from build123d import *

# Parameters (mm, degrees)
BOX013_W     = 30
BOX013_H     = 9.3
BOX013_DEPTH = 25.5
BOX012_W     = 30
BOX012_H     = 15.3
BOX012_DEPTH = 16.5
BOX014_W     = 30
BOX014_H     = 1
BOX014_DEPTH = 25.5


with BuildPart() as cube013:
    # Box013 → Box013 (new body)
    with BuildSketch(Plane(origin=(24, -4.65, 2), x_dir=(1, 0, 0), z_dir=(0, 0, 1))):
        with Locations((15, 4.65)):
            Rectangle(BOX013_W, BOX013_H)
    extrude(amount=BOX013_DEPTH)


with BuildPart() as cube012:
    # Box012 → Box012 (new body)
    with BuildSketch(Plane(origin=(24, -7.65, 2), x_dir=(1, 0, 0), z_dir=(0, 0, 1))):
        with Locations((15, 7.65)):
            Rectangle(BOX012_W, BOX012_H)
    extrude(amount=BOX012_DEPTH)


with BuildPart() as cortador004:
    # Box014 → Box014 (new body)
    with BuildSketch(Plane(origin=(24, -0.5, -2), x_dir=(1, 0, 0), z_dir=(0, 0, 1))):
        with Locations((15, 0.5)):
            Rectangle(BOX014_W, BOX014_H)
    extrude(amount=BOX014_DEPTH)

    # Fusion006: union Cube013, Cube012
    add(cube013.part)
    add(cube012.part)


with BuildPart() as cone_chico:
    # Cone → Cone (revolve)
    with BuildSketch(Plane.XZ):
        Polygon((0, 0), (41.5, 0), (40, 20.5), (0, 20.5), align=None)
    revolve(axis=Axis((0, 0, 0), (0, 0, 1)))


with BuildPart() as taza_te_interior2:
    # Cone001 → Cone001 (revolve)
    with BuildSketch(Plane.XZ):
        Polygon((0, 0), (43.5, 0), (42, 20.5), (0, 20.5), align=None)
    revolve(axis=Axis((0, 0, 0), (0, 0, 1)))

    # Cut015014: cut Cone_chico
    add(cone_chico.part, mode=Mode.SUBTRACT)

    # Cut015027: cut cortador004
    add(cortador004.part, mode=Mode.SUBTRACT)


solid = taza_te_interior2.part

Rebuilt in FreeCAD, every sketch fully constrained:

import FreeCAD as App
import Part
import Sketcher
Q = App.Units.Quantity

doc = App.newDocument("Part")
params = doc.addObject("Spreadsheet::Sheet", "Params")
for row, (alias, value) in enumerate([
    ("sketch1_width", "30 mm"),
    ("sketch1_height", "9.3 mm"),
    ("pad1_length", "25.5 mm"),
    ("sketch2_width", "30 mm"),
    ("sketch2_height", "15.3 mm"),
    ("pad2_length", "16.5 mm"),
    ("sketch3_width", "30 mm"),
    ("sketch3_height", "1 mm"),
    ("pad3_length", "25.5 mm"),
    ("sketch4_width", "40 mm"),
    ("sketch4_width2", "41.5 mm"),
    ("sketch4_height", "20.5 mm"),
    ("revolution_angle", "360 deg"),
    ("sketch5_width", "42 mm"),
    ("sketch5_width2", "43.5 mm"),
    ("sketch5_height", "20.5 mm"),
    ("revolution2_angle", "360 deg"),
], start=1):
    params.set(f"A{row}", alias)
    params.set(f"B{row}", "=" + value)
    params.setAlias(f"B{row}", alias)

body = doc.addObject("PartDesign::Body", "Body")

# Sketch on XY plane
sketch1 = doc.addObject("Sketcher::SketchObject", "Sketch")
body.addObject(sketch1)
sketch1.AttachmentSupport = (doc.XY_Plane, [""])
sketch1.MapMode = "FlatFace"
sketch1.AttachmentOffset = App.Placement(App.Vector(0, 0, 2), App.Rotation())
sketch1.addGeometry([
    Part.LineSegment(App.Vector(24, 5, 0), App.Vector(24, -5, 0)),
    Part.LineSegment(App.Vector(24, -5, 0), App.Vector(54, -5, 0)),
    Part.LineSegment(App.Vector(54, -5, 0), App.Vector(54, 5, 0)),
    Part.LineSegment(App.Vector(54, 5, 0), App.Vector(24, 5, 0)),
], False)
sketch1.addConstraint([
    Sketcher.Constraint("Coincident", 0, 2, 1, 1),
    Sketcher.Constraint("Coincident", 1, 2, 2, 1),
    Sketcher.Constraint("Coincident", 2, 2, 3, 1),
    Sketcher.Constraint("Coincident", 3, 2, 0, 1),
    Sketcher.Constraint("Vertical", 0),
    Sketcher.Constraint("Horizontal", 1),
    Sketcher.Constraint("Vertical", 2),
    Sketcher.Constraint("Horizontal", 3),
    Sketcher.Constraint("DistanceX", 1, 1, 1, 2, Q("30 mm")),
    Sketcher.Constraint("DistanceY", 0, 2, 0, 1, Q("9.3 mm")),
    Sketcher.Constraint("DistanceX", -1, 1, 0, 2, Q("24 mm")),
    Sketcher.Constraint("DistanceY", 0, 2, -1, 1, Q("4.65 mm")),
])
sketch1.setExpression("Constraints[8]", "Params.sketch1_width")
sketch1.setExpression("Constraints[9]", "Params.sketch1_height")
pad1 = doc.addObject("PartDesign::Pad", "Pad")
body.addObject(pad1)
pad1.Profile = sketch1
pad1.setExpression("Length", "Params.pad1_length")
body2 = doc.addObject("PartDesign::Body", "Body001")

# Sketch on XY plane
sketch2 = doc.addObject("Sketcher::SketchObject", "Sketch001")
body2.addObject(sketch2)
sketch2.AttachmentSupport = (doc.getObject("XY_Plane001"), [""])
sketch2.MapMode = "FlatFace"
sketch2.AttachmentOffset = App.Placement(App.Vector(0, 0, 2), App.Rotation())
sketch2.addGeometry([
    Part.LineSegment(App.Vector(24, 8, 0), App.Vector(24, -8, 0)),
    Part.LineSegment(App.Vector(24, -8, 0), App.Vector(54, -8, 0)),
    Part.LineSegment(App.Vector(54, -8, 0), App.Vector(54, 8, 0)),
    Part.LineSegment(App.Vector(54, 8, 0), App.Vector(24, 8, 0)),
], False)
sketch2.addConstraint([
    Sketcher.Constraint("Coincident", 0, 2, 1, 1),
    Sketcher.Constraint("Coincident", 1, 2, 2, 1),
    Sketcher.Constraint("Coincident", 2, 2, 3, 1),
    Sketcher.Constraint("Coincident", 3, 2, 0, 1),
    Sketcher.Constraint("Vertical", 0),
    Sketcher.Constraint("Horizontal", 1),
    Sketcher.Constraint("Vertical", 2),
    Sketcher.Constraint("Horizontal", 3),
    Sketcher.Constraint("DistanceX", 1, 1, 1, 2, Q("30 mm")),
    Sketcher.Constraint("DistanceY", 0, 2, 0, 1, Q("15.3 mm")),
    Sketcher.Constraint("DistanceX", -1, 1, 0, 2, Q("24 mm")),
    Sketcher.Constraint("DistanceY", 0, 2, -1, 1, Q("7.65 mm")),
])
sketch2.setExpression("Constraints[8]", "Params.sketch2_width")
sketch2.setExpression("Constraints[9]", "Params.sketch2_height")
pad2 = doc.addObject("PartDesign::Pad", "Pad001")
body2.addObject(pad2)
pad2.Profile = sketch2
pad2.setExpression("Length", "Params.pad2_length")
body3 = doc.addObject("PartDesign::Body", "Body002")

# Sketch on XY plane
sketch3 = doc.addObject("Sketcher::SketchObject", "Sketch002")
body3.addObject(sketch3)
sketch3.AttachmentSupport = (doc.getObject("XY_Plane002"), [""])
sketch3.MapMode = "FlatFace"
sketch3.AttachmentOffset = App.Placement(App.Vector(0, 0, -2), App.Rotation())
sketch3.addGeometry([
    Part.LineSegment(App.Vector(24, 0.5, 0), App.Vector(24, -0.5, 0)),
    Part.LineSegment(App.Vector(24, -0.5, 0), App.Vector(54, -0.5, 0)),
    Part.LineSegment(App.Vector(54, -0.5, 0), App.Vector(54, 0.5, 0)),
    Part.LineSegment(App.Vector(54, 0.5, 0), App.Vector(24, 0.5, 0)),
], False)
sketch3.addConstraint([
    Sketcher.Constraint("Coincident", 0, 2, 1, 1),
    Sketcher.Constraint("Coincident", 1, 2, 2, 1),
    Sketcher.Constraint("Coincident", 2, 2, 3, 1),
    Sketcher.Constraint("Coincident", 3, 2, 0, 1),
    Sketcher.Constraint("Vertical", 0),
    Sketcher.Constraint("Horizontal", 1),
    Sketcher.Constraint("Vertical", 2),
    Sketcher.Constraint("Horizontal", 3),
    Sketcher.Constraint("DistanceX", 1, 1, 1, 2, Q("30 mm")),
    Sketcher.Constraint("DistanceY", 0, 2, 0, 1, Q("1 mm")),
    Sketcher.Constraint("DistanceX", -1, 1, 0, 2, Q("24 mm")),
    Sketcher.Constraint("DistanceY", 0, 2, -1, 1, Q("0.5 mm")),
])
sketch3.setExpression("Constraints[8]", "Params.sketch3_width")
sketch3.setExpression("Constraints[9]", "Params.sketch3_height")
pad3 = doc.addObject("PartDesign::Pad", "Pad002")
body3.addObject(pad3)
pad3.Profile = sketch3
pad3.setExpression("Length", "Params.pad3_length")
doc.recompute()

boolean = doc.addObject("PartDesign::Boolean", "Boolean")
body3.addObject(boolean)
boolean.Type = "Fuse"
boolean.addObjects([body])
doc.recompute()

boolean2 = doc.addObject("PartDesign::Boolean", "Boolean001")
body3.addObject(boolean2)
boolean2.Type = "Fuse"
boolean2.addObjects([body2])
body4 = doc.addObject("PartDesign::Body", "Body003")

# Sketch on XZ plane
sketch4 = doc.addObject("Sketcher::SketchObject", "Sketch003")
body4.addObject(sketch4)
sketch4.AttachmentSupport = (doc.getObject("XZ_Plane003"), [""])
sketch4.MapMode = "FlatFace"
sketch4.addGeometry([
    Part.LineSegment(App.Vector(0, 0, 0), App.Vector(42, 0, 0)),
    Part.LineSegment(App.Vector(42, 0, 0), App.Vector(40, 20, 0)),
    Part.LineSegment(App.Vector(40, 20, 0), App.Vector(0, 20, 0)),
    Part.LineSegment(App.Vector(0, 20, 0), App.Vector(0, 0, 0)),
], False)
sketch4.addConstraint([
    Sketcher.Constraint("Coincident", 0, 2, 1, 1),
    Sketcher.Constraint("Coincident", 1, 2, 2, 1),
    Sketcher.Constraint("Coincident", 2, 2, 3, 1),
    Sketcher.Constraint("Coincident", 3, 2, 0, 1),
    Sketcher.Constraint("Horizontal", 0),
    Sketcher.Constraint("Horizontal", 2),
    Sketcher.Constraint("Vertical", 3),
    Sketcher.Constraint("Coincident", 3, 2, -1, 1),
    Sketcher.Constraint("DistanceX", 2, 2, 2, 1, Q("40 mm")),
    Sketcher.Constraint("DistanceX", 0, 1, 0, 2, Q("41.5 mm")),
    Sketcher.Constraint("DistanceY", 3, 2, 3, 1, Q("20.5 mm")),
])
sketch4.setExpression("Constraints[8]", "Params.sketch4_width")
sketch4.setExpression("Constraints[9]", "Params.sketch4_width2")
sketch4.setExpression("Constraints[10]", "Params.sketch4_height")
revolution = doc.addObject("PartDesign::Revolution", "Revolution")
body4.addObject(revolution)
revolution.Profile = sketch4
revolution.ReferenceAxis = (sketch4, ["V_Axis"])
revolution.setExpression("Angle", "Params.revolution_angle")
body5 = doc.addObject("PartDesign::Body", "Body004")

# Sketch on XZ plane
sketch5 = doc.addObject("Sketcher::SketchObject", "Sketch004")
body5.addObject(sketch5)
sketch5.AttachmentSupport = (doc.getObject("XZ_Plane004"), [""])
sketch5.MapMode = "FlatFace"
sketch5.addGeometry([
    Part.LineSegment(App.Vector(0, 0, 0), App.Vector(44, 0, 0)),
    Part.LineSegment(App.Vector(44, 0, 0), App.Vector(42, 20, 0)),
    Part.LineSegment(App.Vector(42, 20, 0), App.Vector(0, 20, 0)),
    Part.LineSegment(App.Vector(0, 20, 0), App.Vector(0, 0, 0)),
], False)
sketch5.addConstraint([
    Sketcher.Constraint("Coincident", 0, 2, 1, 1),
    Sketcher.Constraint("Coincident", 1, 2, 2, 1),
    Sketcher.Constraint("Coincident", 2, 2, 3, 1),
    Sketcher.Constraint("Coincident", 3, 2, 0, 1),
    Sketcher.Constraint("Horizontal", 0),
    Sketcher.Constraint("Horizontal", 2),
    Sketcher.Constraint("Vertical", 3),
    Sketcher.Constraint("Coincident", 3, 2, -1, 1),
    Sketcher.Constraint("DistanceX", 2, 2, 2, 1, Q("42 mm")),
    Sketcher.Constraint("DistanceX", 0, 1, 0, 2, Q("43.5 mm")),
    Sketcher.Constraint("DistanceY", 3, 2, 3, 1, Q("20.5 mm")),
])
sketch5.setExpression("Constraints[8]", "Params.sketch5_width")
sketch5.setExpression("Constraints[9]", "Params.sketch5_width2")
sketch5.setExpression("Constraints[10]", "Params.sketch5_height")
revolution2 = doc.addObject("PartDesign::Revolution", "Revolution001")
body5.addObject(revolution2)
revolution2.Profile = sketch5
revolution2.ReferenceAxis = (sketch5, ["V_Axis"])
revolution2.setExpression("Angle", "Params.revolution2_angle")
doc.recompute()

boolean3 = doc.addObject("PartDesign::Boolean", "Boolean002")
body5.addObject(boolean3)
boolean3.Type = "Cut"
boolean3.addObjects([body4])
doc.recompute()

boolean4 = doc.addObject("PartDesign::Boolean", "Boolean003")
body5.addObject(boolean4)
boolean4.Type = "Cut"
boolean4.addObjects([body3])

doc.recompute()
